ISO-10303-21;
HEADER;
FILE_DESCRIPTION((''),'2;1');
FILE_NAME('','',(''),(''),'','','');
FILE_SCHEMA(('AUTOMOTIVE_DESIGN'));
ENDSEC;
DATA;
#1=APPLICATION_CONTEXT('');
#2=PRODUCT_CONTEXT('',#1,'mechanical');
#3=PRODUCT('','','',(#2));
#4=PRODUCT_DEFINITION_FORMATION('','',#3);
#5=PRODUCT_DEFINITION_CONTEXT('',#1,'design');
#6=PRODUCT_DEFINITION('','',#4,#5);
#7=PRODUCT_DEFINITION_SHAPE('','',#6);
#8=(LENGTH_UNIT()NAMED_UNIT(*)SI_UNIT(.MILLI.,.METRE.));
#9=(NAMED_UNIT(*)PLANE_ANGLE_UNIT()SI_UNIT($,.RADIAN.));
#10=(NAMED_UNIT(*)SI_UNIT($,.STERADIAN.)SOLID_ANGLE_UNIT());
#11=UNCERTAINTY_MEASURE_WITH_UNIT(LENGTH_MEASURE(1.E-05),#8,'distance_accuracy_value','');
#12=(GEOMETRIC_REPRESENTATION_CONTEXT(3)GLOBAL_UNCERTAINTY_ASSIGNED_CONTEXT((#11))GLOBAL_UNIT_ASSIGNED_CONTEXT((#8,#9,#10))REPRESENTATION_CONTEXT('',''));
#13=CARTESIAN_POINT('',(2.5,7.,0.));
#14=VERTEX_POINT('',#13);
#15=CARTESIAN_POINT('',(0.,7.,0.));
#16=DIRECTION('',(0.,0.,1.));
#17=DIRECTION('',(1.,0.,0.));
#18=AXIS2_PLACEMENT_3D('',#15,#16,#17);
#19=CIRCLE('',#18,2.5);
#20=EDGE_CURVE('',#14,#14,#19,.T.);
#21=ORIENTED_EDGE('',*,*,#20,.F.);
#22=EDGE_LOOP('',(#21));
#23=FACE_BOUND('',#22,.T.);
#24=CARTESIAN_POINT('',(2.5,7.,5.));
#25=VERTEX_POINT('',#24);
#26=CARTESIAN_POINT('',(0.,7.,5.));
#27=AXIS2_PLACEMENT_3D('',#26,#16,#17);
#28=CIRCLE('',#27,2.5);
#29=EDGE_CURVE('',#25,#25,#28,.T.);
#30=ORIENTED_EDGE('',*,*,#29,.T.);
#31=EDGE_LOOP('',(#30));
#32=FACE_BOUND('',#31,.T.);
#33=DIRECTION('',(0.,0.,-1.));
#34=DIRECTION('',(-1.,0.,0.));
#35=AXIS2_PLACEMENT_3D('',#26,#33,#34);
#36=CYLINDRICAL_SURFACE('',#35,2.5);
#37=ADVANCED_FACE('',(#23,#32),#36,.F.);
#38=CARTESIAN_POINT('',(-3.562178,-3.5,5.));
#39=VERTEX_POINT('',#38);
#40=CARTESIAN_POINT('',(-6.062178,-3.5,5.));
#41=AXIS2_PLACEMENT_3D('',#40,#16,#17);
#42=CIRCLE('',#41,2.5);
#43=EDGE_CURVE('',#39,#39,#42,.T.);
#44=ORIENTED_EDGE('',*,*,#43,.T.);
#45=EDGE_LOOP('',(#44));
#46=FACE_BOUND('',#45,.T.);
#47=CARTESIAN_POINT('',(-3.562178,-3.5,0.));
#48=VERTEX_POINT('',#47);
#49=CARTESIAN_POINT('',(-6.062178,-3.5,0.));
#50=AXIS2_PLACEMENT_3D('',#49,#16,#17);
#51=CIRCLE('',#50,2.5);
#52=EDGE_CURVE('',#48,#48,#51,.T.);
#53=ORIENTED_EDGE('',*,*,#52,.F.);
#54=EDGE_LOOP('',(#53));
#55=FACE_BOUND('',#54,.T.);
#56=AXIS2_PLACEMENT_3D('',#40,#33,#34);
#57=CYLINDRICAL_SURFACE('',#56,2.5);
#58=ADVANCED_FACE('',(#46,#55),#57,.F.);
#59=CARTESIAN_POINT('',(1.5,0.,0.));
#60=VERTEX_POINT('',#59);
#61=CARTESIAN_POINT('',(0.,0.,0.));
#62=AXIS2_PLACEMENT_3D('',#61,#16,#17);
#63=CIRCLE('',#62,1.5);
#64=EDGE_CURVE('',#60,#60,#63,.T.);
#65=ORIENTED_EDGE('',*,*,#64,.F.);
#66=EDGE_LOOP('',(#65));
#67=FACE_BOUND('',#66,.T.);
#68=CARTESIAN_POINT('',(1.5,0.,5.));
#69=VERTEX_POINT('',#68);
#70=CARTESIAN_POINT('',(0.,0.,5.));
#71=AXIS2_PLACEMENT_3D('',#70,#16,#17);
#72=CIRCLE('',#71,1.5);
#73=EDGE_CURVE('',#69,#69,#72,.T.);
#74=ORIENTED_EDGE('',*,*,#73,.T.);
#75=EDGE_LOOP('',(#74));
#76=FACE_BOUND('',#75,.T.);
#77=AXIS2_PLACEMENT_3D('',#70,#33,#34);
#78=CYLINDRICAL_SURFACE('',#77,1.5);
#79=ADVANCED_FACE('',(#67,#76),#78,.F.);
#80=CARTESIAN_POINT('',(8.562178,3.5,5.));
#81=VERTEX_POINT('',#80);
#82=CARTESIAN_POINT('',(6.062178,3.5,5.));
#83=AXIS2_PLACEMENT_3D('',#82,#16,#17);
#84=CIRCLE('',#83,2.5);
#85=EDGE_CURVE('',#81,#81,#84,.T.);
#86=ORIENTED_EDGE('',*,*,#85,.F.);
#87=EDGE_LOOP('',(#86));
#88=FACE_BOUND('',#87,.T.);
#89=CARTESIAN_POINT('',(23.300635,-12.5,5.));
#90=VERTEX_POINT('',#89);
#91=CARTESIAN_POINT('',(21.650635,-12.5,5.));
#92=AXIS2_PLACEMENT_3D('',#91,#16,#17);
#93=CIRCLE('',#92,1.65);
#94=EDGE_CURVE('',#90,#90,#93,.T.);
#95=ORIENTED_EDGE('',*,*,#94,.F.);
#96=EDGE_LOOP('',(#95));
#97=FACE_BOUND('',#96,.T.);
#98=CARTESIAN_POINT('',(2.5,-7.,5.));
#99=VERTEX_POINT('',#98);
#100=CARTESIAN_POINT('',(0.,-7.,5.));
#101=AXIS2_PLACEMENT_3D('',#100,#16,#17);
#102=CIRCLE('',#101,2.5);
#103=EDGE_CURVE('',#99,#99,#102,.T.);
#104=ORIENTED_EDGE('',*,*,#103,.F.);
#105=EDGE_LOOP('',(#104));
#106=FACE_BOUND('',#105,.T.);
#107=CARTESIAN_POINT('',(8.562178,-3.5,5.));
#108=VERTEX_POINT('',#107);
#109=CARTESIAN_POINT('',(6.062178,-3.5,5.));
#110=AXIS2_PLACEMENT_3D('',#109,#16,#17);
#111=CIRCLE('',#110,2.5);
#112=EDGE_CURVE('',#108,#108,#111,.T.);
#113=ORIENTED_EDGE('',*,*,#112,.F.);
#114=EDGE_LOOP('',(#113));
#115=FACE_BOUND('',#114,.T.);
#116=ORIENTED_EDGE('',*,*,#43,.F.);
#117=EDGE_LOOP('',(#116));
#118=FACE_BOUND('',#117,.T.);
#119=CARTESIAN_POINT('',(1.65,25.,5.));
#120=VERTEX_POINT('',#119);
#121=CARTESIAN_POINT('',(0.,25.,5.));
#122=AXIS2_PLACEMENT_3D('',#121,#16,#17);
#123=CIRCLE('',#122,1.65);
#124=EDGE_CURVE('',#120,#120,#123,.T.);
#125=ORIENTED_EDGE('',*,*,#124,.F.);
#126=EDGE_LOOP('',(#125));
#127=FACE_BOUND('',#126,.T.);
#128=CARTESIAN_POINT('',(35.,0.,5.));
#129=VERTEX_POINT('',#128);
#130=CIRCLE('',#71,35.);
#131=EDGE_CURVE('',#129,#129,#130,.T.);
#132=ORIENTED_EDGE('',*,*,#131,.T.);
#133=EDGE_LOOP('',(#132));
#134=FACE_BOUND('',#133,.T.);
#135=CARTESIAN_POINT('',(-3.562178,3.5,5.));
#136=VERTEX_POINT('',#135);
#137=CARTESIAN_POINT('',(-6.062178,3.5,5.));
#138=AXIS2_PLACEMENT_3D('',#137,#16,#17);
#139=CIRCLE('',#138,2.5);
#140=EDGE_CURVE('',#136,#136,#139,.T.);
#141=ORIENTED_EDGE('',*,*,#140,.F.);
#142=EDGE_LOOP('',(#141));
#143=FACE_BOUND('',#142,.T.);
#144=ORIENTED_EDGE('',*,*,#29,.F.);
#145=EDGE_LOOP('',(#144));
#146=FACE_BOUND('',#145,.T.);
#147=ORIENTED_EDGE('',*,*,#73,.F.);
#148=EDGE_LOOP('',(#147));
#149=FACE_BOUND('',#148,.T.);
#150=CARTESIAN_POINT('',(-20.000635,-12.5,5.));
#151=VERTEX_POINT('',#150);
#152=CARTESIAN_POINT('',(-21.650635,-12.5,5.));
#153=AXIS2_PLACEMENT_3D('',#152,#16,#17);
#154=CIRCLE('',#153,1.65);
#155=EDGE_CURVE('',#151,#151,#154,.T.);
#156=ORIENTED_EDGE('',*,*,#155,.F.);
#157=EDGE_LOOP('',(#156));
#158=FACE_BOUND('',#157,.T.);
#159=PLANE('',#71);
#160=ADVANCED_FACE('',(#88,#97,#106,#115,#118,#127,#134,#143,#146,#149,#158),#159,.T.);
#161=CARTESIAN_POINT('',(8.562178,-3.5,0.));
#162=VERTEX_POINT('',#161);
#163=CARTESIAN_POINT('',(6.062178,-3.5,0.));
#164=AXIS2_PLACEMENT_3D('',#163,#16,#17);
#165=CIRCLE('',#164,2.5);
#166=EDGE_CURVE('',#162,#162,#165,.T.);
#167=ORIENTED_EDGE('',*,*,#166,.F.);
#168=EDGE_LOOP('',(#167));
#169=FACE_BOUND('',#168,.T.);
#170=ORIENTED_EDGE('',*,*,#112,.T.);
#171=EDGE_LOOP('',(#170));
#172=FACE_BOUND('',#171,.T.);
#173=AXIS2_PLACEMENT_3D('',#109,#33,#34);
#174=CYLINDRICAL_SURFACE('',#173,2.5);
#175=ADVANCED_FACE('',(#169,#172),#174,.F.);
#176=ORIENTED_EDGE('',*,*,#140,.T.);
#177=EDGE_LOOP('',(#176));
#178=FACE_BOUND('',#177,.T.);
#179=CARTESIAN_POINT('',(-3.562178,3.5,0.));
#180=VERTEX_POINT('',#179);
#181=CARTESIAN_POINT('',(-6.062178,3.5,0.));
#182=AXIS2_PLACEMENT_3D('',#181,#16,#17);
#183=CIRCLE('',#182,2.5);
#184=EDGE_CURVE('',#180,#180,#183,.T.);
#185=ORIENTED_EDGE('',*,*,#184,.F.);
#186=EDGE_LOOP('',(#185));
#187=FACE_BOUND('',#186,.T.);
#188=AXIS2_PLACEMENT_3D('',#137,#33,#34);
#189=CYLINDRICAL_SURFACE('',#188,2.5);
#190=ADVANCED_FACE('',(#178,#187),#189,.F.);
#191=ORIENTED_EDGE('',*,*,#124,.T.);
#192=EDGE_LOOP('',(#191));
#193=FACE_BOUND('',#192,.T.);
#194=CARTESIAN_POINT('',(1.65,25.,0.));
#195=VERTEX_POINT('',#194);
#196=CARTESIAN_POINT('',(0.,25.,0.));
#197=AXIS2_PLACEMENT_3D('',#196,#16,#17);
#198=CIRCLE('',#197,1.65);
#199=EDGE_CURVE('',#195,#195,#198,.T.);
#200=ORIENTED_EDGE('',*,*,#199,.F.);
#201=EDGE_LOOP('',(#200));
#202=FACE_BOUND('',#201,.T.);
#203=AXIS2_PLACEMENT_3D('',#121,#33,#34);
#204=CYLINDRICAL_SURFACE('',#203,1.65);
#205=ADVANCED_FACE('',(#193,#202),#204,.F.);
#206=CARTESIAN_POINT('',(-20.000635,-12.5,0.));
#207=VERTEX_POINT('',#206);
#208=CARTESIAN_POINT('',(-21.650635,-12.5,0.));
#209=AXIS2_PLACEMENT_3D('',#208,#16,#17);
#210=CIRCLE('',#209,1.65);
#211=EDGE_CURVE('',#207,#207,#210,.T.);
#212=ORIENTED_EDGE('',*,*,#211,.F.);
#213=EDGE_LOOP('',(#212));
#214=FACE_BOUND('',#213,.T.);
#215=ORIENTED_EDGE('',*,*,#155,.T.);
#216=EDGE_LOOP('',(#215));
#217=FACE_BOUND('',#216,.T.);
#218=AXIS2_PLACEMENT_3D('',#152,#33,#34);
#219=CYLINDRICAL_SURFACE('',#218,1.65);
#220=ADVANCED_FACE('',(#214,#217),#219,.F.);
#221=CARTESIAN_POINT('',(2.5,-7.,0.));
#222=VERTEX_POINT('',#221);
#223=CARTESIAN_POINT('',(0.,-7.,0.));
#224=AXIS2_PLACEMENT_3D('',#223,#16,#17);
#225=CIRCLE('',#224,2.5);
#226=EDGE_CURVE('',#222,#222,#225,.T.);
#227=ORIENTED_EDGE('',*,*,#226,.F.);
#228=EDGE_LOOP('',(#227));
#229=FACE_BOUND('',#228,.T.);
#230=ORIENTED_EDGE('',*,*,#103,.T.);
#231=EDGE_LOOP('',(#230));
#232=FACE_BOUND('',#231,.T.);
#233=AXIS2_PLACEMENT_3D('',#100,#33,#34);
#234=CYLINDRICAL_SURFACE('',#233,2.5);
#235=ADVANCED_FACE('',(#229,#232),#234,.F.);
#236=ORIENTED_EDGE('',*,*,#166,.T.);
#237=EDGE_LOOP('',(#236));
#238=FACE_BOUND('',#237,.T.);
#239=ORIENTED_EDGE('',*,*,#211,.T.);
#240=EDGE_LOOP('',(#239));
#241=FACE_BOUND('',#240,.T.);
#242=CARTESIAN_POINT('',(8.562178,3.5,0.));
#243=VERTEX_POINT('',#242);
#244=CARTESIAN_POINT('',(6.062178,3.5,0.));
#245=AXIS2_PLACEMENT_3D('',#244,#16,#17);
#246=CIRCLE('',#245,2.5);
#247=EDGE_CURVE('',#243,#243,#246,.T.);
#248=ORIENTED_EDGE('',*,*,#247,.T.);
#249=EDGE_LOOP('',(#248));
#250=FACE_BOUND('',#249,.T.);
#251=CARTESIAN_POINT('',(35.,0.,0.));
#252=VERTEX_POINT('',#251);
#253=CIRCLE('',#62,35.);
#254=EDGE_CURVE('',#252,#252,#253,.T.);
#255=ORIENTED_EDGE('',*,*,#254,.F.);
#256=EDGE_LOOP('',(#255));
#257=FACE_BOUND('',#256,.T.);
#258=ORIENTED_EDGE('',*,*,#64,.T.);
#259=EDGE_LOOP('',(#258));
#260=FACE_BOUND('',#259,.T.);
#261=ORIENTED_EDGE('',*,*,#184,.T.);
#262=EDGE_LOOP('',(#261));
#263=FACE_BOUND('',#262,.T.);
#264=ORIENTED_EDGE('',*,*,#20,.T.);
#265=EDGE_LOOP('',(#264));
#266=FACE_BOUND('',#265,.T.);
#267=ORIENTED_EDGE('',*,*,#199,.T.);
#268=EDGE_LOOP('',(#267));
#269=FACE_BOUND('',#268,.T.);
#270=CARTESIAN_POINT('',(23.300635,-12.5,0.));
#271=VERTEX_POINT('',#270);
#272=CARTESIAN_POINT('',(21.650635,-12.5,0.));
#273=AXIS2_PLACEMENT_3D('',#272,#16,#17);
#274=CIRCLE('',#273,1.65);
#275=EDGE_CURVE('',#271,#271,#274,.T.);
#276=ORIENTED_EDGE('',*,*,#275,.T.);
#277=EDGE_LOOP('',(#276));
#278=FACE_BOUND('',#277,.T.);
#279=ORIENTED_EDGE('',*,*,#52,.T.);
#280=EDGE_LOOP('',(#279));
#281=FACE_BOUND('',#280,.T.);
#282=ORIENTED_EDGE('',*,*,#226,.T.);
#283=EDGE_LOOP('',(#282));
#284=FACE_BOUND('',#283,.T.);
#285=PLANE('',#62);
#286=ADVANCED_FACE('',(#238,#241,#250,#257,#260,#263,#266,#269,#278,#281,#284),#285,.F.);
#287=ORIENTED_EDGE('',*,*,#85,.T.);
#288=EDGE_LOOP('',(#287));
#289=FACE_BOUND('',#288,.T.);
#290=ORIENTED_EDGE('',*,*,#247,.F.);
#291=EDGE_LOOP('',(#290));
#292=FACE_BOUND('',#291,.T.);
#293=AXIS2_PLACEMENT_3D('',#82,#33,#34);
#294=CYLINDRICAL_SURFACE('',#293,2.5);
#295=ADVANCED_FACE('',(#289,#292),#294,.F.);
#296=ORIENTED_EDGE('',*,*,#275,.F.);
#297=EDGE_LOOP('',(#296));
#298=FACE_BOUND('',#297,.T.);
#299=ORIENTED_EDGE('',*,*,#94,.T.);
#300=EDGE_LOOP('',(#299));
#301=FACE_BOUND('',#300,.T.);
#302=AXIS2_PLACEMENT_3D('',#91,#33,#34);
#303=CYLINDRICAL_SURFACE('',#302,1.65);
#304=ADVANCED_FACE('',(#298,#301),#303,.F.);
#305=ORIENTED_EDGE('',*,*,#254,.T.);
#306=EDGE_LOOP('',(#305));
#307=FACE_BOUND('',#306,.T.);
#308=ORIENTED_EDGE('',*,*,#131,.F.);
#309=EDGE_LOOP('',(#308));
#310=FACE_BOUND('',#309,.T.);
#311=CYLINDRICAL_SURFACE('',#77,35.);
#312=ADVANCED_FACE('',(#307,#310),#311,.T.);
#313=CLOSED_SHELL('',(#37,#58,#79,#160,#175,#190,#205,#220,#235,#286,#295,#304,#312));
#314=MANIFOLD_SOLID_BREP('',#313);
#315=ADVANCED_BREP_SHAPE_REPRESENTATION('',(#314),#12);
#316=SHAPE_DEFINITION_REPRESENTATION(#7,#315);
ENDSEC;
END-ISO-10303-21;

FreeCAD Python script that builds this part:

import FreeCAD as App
import Part
import Sketcher

V = App.Vector
Q = App.Units.Quantity

doc = App.newDocument("Part")
body = doc.addObject("PartDesign::Body", "Body")

sketch1 = body.newObject("Sketcher::SketchObject", "Sketch")
sketch1.AttachmentSupport = (doc.getObject("XY_Plane"), [""])
sketch1.MapMode = "FlatFace"
sketch1.addGeometry([
    Part.Circle(V(0, 0, 0), V(0, 0, 1), 35),
    Part.Circle(V(-21.650635, -12.5, 0), V(0, 0, 1), 1.65),
    Part.Circle(V(-6.062178, -3.5, 0), V(0, 0, 1), 2.5),
    Part.Circle(V(-6.062178, 3.5, 0), V(0, 0, 1), 2.5),
    Part.Circle(V(0, -7, 0), V(0, 0, 1), 2.5),
    Part.Circle(V(21.650635, -12.5, 0), V(0, 0, 1), 1.65),
    Part.Circle(V(0, 0, 0), V(0, 0, 1), 1.5),
    Part.Circle(V(6.062178, -3.5, 0), V(0, 0, 1), 2.5),
    Part.Circle(V(6.062178, 3.5, 0), V(0, 0, 1), 2.5),
    Part.Circle(V(0, 7, 0), V(0, 0, 1), 2.5),
    Part.Circle(V(0, 25, 0), V(0, 0, 1), 1.65),
], False)
sketch1.addConstraint([
    Sketcher.Constraint("Coincident", 0, 3, -1, 1),
    Sketcher.Constraint("Coincident", 6, 3, -1, 1),
    Sketcher.Constraint("Equal", 2, 3),
    Sketcher.Constraint("Equal", 3, 4),
    Sketcher.Constraint("Equal", 1, 5),
    Sketcher.Constraint("Equal", 4, 7),
    Sketcher.Constraint("Equal", 7, 8),
    Sketcher.Constraint("Equal", 8, 9),
    Sketcher.Constraint("Equal", 5, 10),
    Sketcher.Constraint("Symmetric", 3, 3, 7, 3, -1, 1),
    Sketcher.Constraint("Symmetric", 2, 3, 8, 3, -1, 1),
    Sketcher.Constraint("Symmetric", 4, 3, 9, 3, -1, 1),
    Sketcher.Constraint("Symmetric", 1, 3, 5, 3, -2),
    Sketcher.Constraint("Symmetric", 2, 3, 7, 3, -2),
    Sketcher.Constraint("PointOnObject", 4, 3, -2),
    Sketcher.Constraint("PointOnObject", 10, 3, -2),
    Sketcher.Constraint("Diameter", 0, Q("70 mm")),
    Sketcher.Constraint("Diameter", 2, Q("5 mm")),
    Sketcher.Constraint("Diameter", 6, Q("3 mm")),
    Sketcher.Constraint("Diameter", 1, Q("3.3 mm")),
    Sketcher.Constraint("DistanceY", 4, 3, -1, 1, Q("7 mm")),
    Sketcher.Constraint("DistanceY", -1, 1, 10, 3, Q("25 mm")),
    Sketcher.Constraint("DistanceY", 1, 3, 2, 3, Q("9 mm")),
    Sketcher.Constraint("DistanceY", 2, 3, 3, 3, Q("7 mm")),
    Sketcher.Constraint("DistanceX", 1, 3, 5, 3, Q("43.30127 mm")),
    Sketcher.Constraint("DistanceX", 2, 3, -1, 1, Q("6.062178 mm")),
])
pad1 = body.newObject("PartDesign::Pad", "Pad")
pad1.Profile = sketch1
pad1.Length = 5

doc.recompute()
